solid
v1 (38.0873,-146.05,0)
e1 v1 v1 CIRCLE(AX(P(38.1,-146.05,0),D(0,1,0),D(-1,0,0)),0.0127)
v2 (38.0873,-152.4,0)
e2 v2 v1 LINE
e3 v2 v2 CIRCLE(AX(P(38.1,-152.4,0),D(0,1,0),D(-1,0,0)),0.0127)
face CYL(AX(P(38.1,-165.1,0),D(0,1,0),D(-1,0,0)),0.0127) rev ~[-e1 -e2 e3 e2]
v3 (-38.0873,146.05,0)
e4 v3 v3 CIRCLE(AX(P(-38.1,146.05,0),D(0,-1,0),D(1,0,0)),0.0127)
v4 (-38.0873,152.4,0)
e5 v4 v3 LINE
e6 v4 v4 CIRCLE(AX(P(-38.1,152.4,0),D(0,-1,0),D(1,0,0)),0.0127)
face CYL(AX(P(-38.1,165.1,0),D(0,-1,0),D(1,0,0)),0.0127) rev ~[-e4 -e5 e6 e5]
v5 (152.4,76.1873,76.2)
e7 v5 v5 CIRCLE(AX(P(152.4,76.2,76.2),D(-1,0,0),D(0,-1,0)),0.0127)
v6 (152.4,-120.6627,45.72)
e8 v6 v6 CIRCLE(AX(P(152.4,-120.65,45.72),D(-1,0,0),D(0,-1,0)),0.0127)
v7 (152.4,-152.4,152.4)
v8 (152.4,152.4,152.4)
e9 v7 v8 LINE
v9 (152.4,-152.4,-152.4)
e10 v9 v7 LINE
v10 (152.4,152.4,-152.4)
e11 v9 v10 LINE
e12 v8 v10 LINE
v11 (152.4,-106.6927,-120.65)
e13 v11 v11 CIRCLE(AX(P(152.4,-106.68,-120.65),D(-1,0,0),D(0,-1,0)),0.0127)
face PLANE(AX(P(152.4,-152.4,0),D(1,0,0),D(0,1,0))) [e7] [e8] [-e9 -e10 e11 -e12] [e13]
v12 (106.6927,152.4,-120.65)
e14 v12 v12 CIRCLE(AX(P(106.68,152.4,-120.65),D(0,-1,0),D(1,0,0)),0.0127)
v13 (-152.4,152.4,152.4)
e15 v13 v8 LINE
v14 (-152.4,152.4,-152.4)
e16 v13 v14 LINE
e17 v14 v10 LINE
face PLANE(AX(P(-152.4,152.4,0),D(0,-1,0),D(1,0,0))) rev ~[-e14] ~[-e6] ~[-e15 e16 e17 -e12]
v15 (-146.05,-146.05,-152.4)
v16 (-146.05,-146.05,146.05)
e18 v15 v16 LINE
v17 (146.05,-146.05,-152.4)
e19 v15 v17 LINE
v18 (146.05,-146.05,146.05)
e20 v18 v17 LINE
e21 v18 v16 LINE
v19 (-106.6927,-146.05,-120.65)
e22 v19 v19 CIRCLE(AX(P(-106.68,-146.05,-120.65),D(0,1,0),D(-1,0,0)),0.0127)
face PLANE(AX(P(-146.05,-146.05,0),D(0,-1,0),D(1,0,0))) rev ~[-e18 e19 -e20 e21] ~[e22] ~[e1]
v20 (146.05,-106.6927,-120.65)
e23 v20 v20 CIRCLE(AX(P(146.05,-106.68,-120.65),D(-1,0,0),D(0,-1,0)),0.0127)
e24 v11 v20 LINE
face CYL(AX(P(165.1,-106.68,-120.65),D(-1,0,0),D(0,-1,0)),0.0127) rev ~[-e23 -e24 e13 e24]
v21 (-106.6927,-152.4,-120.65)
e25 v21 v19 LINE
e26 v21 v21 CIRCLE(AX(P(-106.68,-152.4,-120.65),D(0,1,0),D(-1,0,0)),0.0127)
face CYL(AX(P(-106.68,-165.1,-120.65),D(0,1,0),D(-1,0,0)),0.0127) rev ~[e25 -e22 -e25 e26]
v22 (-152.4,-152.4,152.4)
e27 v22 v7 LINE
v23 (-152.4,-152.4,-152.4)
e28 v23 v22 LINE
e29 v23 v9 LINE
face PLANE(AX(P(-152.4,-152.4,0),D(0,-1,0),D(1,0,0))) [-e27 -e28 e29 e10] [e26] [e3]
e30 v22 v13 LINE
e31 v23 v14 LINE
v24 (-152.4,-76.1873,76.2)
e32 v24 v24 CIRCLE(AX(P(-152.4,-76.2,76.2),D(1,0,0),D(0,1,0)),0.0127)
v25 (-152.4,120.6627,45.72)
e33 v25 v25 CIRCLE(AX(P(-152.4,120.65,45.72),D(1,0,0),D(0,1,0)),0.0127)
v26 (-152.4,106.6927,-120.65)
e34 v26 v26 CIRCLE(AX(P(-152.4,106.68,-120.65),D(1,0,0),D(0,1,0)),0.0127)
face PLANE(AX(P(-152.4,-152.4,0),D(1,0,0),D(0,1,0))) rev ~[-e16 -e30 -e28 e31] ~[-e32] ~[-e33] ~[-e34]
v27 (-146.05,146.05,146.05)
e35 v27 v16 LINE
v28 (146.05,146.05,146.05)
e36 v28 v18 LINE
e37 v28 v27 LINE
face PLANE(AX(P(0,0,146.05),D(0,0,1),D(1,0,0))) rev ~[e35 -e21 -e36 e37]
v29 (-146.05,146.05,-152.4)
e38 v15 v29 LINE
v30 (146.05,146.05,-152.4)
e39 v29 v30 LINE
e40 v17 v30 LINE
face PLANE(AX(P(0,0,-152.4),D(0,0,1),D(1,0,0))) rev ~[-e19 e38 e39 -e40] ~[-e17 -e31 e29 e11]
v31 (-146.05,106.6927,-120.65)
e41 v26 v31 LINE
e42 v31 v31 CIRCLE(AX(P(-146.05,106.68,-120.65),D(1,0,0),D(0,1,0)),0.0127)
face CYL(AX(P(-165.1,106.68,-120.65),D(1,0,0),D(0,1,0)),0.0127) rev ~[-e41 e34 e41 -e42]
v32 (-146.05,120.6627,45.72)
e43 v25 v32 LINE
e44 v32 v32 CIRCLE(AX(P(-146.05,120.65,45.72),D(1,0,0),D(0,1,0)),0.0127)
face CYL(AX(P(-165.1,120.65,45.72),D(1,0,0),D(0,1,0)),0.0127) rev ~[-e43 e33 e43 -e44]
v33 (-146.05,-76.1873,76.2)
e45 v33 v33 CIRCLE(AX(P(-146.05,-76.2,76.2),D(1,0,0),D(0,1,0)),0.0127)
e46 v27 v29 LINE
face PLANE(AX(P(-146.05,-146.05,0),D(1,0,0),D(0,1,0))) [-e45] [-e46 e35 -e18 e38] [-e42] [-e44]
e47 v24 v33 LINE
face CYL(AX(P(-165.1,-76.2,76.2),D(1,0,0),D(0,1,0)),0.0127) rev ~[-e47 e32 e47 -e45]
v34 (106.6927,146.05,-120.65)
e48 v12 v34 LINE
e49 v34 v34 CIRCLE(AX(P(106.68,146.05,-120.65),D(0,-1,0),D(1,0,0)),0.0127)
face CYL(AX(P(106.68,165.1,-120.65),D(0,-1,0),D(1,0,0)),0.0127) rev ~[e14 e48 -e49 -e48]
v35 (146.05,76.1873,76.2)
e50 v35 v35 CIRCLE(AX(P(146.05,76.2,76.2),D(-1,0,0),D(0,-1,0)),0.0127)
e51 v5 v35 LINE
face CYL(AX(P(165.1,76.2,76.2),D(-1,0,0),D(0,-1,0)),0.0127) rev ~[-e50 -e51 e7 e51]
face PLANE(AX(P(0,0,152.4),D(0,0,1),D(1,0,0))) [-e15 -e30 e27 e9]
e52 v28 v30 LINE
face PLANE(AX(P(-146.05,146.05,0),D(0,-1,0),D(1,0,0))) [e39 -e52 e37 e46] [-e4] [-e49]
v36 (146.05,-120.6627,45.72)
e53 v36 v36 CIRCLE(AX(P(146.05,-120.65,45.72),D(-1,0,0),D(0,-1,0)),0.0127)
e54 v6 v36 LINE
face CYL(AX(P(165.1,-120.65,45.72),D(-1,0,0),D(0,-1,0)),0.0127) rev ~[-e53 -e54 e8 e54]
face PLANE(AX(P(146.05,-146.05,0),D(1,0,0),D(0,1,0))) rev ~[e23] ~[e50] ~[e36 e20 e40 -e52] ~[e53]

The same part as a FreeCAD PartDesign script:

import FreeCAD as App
import Part
import Sketcher
from FreeCAD import Vector
Q = App.Units.Quantity


def add_polygon(sketch, points):
    """Adds a closed chain of lines whose ends are joined by coincident constraints."""
    first, n = sketch.GeometryCount, len(points)
    for a, b in zip(points, points[1:] + points[:1]):
        sketch.addGeometry(Part.LineSegment(App.Vector(*a, 0), App.Vector(*b, 0)), False)
    for i in range(n):
        sketch.addConstraint(Sketcher.Constraint("Coincident", first + i, 2, first + (i + 1) % n, 1))

doc = App.newDocument("Part")
body = doc.addObject("PartDesign::Body", "Body")

sketch1 = body.newObject("Sketcher::SketchObject", "Sketch")
sketch1.AttachmentSupport = (doc.getObject("XY_Plane"), [""])
sketch1.MapMode = "FlatFace"
add_polygon(sketch1, [(-152.4, 152.4), (-152.4, -152.4), (152.4, -152.4), (152.4, 152.4)])
add_polygon(sketch1, [(146.05, -146.05), (-146.05, -146.05), (-146.05, 146.05), (146.05, 146.05)])
sketch1.addConstraint([
    Sketcher.Constraint("Vertical", 0),
    Sketcher.Constraint("Horizontal", 1),
    Sketcher.Constraint("Vertical", 2),
    Sketcher.Constraint("Horizontal", 3),
    Sketcher.Constraint("Horizontal", 4),
    Sketcher.Constraint("Vertical", 5),
    Sketcher.Constraint("Horizontal", 6),
    Sketcher.Constraint("Vertical", 7),
    Sketcher.Constraint("Symmetric", 0, 2, 2, 2, -1, 1),
    Sketcher.Constraint("Symmetric", 4, 2, 6, 2, -1, 1),
    Sketcher.Constraint("Equal", 3, 0),
    Sketcher.Constraint("Equal", 6, 5),
    Sketcher.Constraint("DistanceX", 1, 1, 1, 2, Q("12 in")),
    Sketcher.Constraint("DistanceX", 4, 2, 4, 1, Q("11.5 in")),
])
pad1 = body.newObject("PartDesign::Pad", "Pad")
pad1.Profile = sketch1
pad1.Length = Q("12 in")
pad1.Midplane = True

sketch2 = body.newObject("Sketcher::SketchObject", "Sketch001")
sketch2.AttachmentSupport = (doc.getObject("XY_Plane"), [""])
sketch2.MapMode = "FlatFace"
sketch2.AttachmentOffset = App.Placement(Vector(0, 0, 6 * 25.4), App.Rotation())
add_polygon(sketch2, [(-152.4, 152.4), (-152.4, -152.4), (152.4, -152.4), (152.4, 152.4)])
sketch2.addConstraint([
    Sketcher.Constraint("Vertical", 0),
    Sketcher.Constraint("Horizontal", 1),
    Sketcher.Constraint("Vertical", 2),
    Sketcher.Constraint("Horizontal", 3),
    Sketcher.Constraint("Symmetric", 0, 2, 2, 2, -1, 1),
    Sketcher.Constraint("Equal", 3, 0),
    Sketcher.Constraint("DistanceX", 1, 1, 1, 2, Q("12 in")),
])
pad2 = body.newObject("PartDesign::Pad", "Pad001")
pad2.Profile = sketch2
pad2.Length = Q("0.25 in")
pad2.Reversed = True

sketch3 = body.newObject("Sketcher::SketchObject", "Sketch002")
sketch3.AttachmentSupport = (doc.getObject("XZ_Plane"), [""])
sketch3.MapMode = "FlatFace"
sketch3.AttachmentOffset = App.Placement(Vector(0, 0, -6 * 25.4), App.Rotation())
sketch3.addGeometry(Part.Circle(Vector(-38.1, 0, 0), Vector(0, 0, 1), 0.0127), False)
sketch3.addConstraint([
    Sketcher.Constraint("PointOnObject", 0, 3, -1),
    Sketcher.Constraint("Diameter", 0, Q("0.001 in")),
    Sketcher.Constraint("DistanceX", 0, 3, -1, 1, Q("1.5 in")),
])
doc.recompute()
hole = body.newObject("PartDesign::Hole", "Hole")
hole.Profile = sketch3
hole.ThreadType = "None"
hole.Diameter = Q("0.001 in")
hole.DepthType = "Dimension"
hole.Depth = Q("0.5 in")
hole.DrillPoint = "Flat"
hole.Reversed = True

sketch4 = body.newObject("Sketcher::SketchObject", "Sketch003")
sketch4.AttachmentSupport = (doc.getObject("XZ_Plane"), [""])
sketch4.MapMode = "FlatFace"
sketch4.AttachmentOffset = App.Placement(Vector(0, 0, -6 * 25.4), App.Rotation())
sketch4.addGeometry(Part.Circle(Vector(106.68, -120.65, 0), Vector(0, 0, 1), 0.0127), False)
sketch4.addConstraint([
    Sketcher.Constraint("Diameter", 0, Q("0.001 in")),
    Sketcher.Constraint("DistanceX", -1, 1, 0, 3, Q("4.2 in")),
    Sketcher.Constraint("DistanceY", 0, 3, -1, 1, Q("4.75 in")),
])
doc.recompute()
hole2 = body.newObject("PartDesign::Hole", "Hole001")
hole2.Profile = sketch4
hole2.ThreadType = "None"
hole2.Diameter = Q("0.001 in")
hole2.DepthType = "Dimension"
hole2.Depth = Q("0.5 in")
hole2.DrillPoint = "Flat"
hole2.Reversed = True

sketch5 = body.newObject("Sketcher::SketchObject", "Sketch004")
sketch5.AttachmentSupport = (doc.getObject("XZ_Plane"), [""])
sketch5.MapMode = "FlatFace"
sketch5.AttachmentOffset = App.Placement(Vector(0, 0, 6 * 25.4), App.Rotation())
sketch5.addGeometry(Part.Circle(Vector(-106.68, -120.65, 0), Vector(0, 0, 1), 0.0127), False)
sketch5.addConstraint([
    Sketcher.Constraint("Diameter", 0, Q("0.001 in")),
    Sketcher.Constraint("DistanceX", 0, 3, -1, 1, Q("4.2 in")),
    Sketcher.Constraint("DistanceY", 0, 3, -1, 1, Q("4.75 in")),
])
doc.recompute()
hole3 = body.newObject("PartDesign::Hole", "Hole002")
hole3.Profile = sketch5
hole3.ThreadType = "None"
hole3.Diameter = Q("0.001 in")
hole3.DepthType = "Dimension"
hole3.Depth = Q("0.5 in")
hole3.DrillPoint = "Flat"

sketch6 = body.newObject("Sketcher::SketchObject", "Sketch005")
sketch6.AttachmentSupport = (doc.getObject("XZ_Plane"), [""])
sketch6.MapMode = "FlatFace"
sketch6.AttachmentOffset = App.Placement(Vector(0, 0, 6 * 25.4), App.Rotation())
sketch6.addGeometry(Part.Circle(Vector(38.1, 0, 0), Vector(0, 0, 1), 0.0127), False)
sketch6.addConstraint([
    Sketcher.Constraint("PointOnObject", 0, 3, -1),
    Sketcher.Constraint("Diameter", 0, Q("0.001 in")),
    Sketcher.Constraint("DistanceX", -1, 1, 0, 3, Q("1.5 in")),
])
doc.recompute()
hole4 = body.newObject("PartDesign::Hole", "Hole003")
hole4.Profile = sketch6
hole4.ThreadType = "None"
hole4.Diameter = Q("0.001 in")
hole4.DepthType = "Dimension"
hole4.Depth = Q("0.5 in")
hole4.DrillPoint = "Flat"

sketch7 = body.newObject("Sketcher::SketchObject", "Sketch006")
sketch7.AttachmentSupport = (doc.getObject("YZ_Plane"), [""])
sketch7.MapMode = "FlatFace"
sketch7.AttachmentOffset = App.Placement(Vector(0, 0, 6 * 25.4), App.Rotation())
sketch7.addGeometry(Part.Circle(Vector(-106.68, -120.65, 0), Vector(0, 0, 1), 0.0127), False)
sketch7.addConstraint([
    Sketcher.Constraint("Diameter", 0, Q("0.001 in")),
    Sketcher.Constraint("DistanceX", 0, 3, -1, 1, Q("4.2 in")),
    Sketcher.Constraint("DistanceY", 0, 3, -1, 1, Q("4.75 in")),
])
doc.recompute()
hole5 = body.newObject("PartDesign::Hole", "Hole004")
hole5.Profile = sketch7
hole5.ThreadType = "None"
hole5.Diameter = Q("0.001 in")
hole5.DepthType = "Dimension"
hole5.Depth = Q("0.5 in")
hole5.DrillPoint = "Flat"

sketch8 = body.newObject("Sketcher::SketchObject", "Sketch007")
sketch8.AttachmentSupport = (doc.getObject("YZ_Plane"), [""])
sketch8.MapMode = "FlatFace"
sketch8.AttachmentOffset = App.Placement(Vector(0, 0, 6 * 25.4), App.Rotation())
sketch8.addGeometry(Part.Circle(Vector(76.2, 76.2, 0), Vector(0, 0, 1), 0.0127), False)
sketch8.addConstraint([
    Sketcher.Constraint("Diameter", 0, Q("0.001 in")),
    Sketcher.Constraint("DistanceX", -1, 1, 0, 3, Q("3 in")),
    Sketcher.Constraint("DistanceY", -1, 1, 0, 3, Q("3 in")),
])
doc.recompute()
hole6 = body.newObject("PartDesign::Hole", "Hole005")
hole6.Profile = sketch8
hole6.ThreadType = "None"
hole6.Diameter = Q("0.001 in")
hole6.DepthType = "Dimension"
hole6.Depth = Q("0.5 in")
hole6.DrillPoint = "Flat"

sketch9 = body.newObject("Sketcher::SketchObject", "Sketch008")
sketch9.AttachmentSupport = (doc.getObject("YZ_Plane"), [""])
sketch9.MapMode = "FlatFace"
sketch9.AttachmentOffset = App.Placement(Vector(0, 0, 6 * 25.4), App.Rotation())
sketch9.addGeometry(Part.Circle(Vector(-120.65, 45.72, 0), Vector(0, 0, 1), 0.0127), False)
sketch9.addConstraint([
    Sketcher.Constraint("Diameter", 0, Q("0.001 in")),
    Sketcher.Constraint("DistanceY", -1, 1, 0, 3, Q("1.8 in")),
    Sketcher.Constraint("DistanceX", 0, 3, -1, 1, Q("4.75 in")),
])
doc.recompute()
hole7 = body.newObject("PartDesign::Hole", "Hole006")
hole7.Profile = sketch9
hole7.ThreadType = "None"
hole7.Diameter = Q("0.001 in")
hole7.DepthType = "Dimension"
hole7.Depth = Q("0.5 in")
hole7.DrillPoint = "Flat"

sketch10 = body.newObject("Sketcher::SketchObject", "Sketch009")
sketch10.AttachmentSupport = (doc.getObject("YZ_Plane"), [""])
sketch10.MapMode = "FlatFace"
sketch10.AttachmentOffset = App.Placement(Vector(0, 0, -6 * 25.4), App.Rotation())
sketch10.addGeometry(Part.Circle(Vector(106.68, -120.65, 0), Vector(0, 0, 1), 0.0127), False)
sketch10.addConstraint([
    Sketcher.Constraint("Diameter", 0, Q("0.001 in")),
    Sketcher.Constraint("DistanceX", -1, 1, 0, 3, Q("4.2 in")),
    Sketcher.Constraint("DistanceY", 0, 3, -1, 1, Q("4.75 in")),
])
doc.recompute()
hole8 = body.newObject("PartDesign::Hole", "Hole007")
hole8.Profile = sketch10
hole8.ThreadType = "None"
hole8.Diameter = Q("0.001 in")
hole8.DepthType = "Dimension"
hole8.Depth = Q("0.5 in")
hole8.DrillPoint = "Flat"
hole8.Reversed = True

sketch11 = body.newObject("Sketcher::SketchObject", "Sketch010")
sketch11.AttachmentSupport = (doc.getObject("YZ_Plane"), [""])
sketch11.MapMode = "FlatFace"
sketch11.AttachmentOffset = App.Placement(Vector(0, 0, -6 * 25.4), App.Rotation())
sketch11.addGeometry(Part.Circle(Vector(120.65, 45.72, 0), Vector(0, 0, 1), 0.0127), False)
sketch11.addConstraint([
    Sketcher.Constraint("Diameter", 0, Q("0.001 in")),
    Sketcher.Constraint("DistanceY", -1, 1, 0, 3, Q("1.8 in")),
    Sketcher.Constraint("DistanceX", -1, 1, 0, 3, Q("4.75 in")),
])
doc.recompute()
hole9 = body.newObject("PartDesign::Hole", "Hole008")
hole9.Profile = sketch11
hole9.ThreadType = "None"
hole9.Diameter = Q("0.001 in")
hole9.DepthType = "Dimension"
hole9.Depth = Q("0.5 in")
hole9.DrillPoint = "Flat"
hole9.Reversed = True

sketch12 = body.newObject("Sketcher::SketchObject", "Sketch011")
sketch12.AttachmentSupport = (doc.getObject("YZ_Plane"), [""])
sketch12.MapMode = "FlatFace"
sketch12.AttachmentOffset = App.Placement(Vector(0, 0, -6 * 25.4), App.Rotation())
sketch12.addGeometry(Part.Circle(Vector(-76.2, 76.2, 0), Vector(0, 0, 1), 0.0127), False)
sketch12.addConstraint([
    Sketcher.Constraint("Diameter", 0, Q("0.001 in")),
    Sketcher.Constraint("DistanceX", 0, 3, -1, 1, Q("3 in")),
    Sketcher.Constraint("DistanceY", -1, 1, 0, 3, Q("3 in")),
])
doc.recompute()
hole10 = body.newObject("PartDesign::Hole", "Hole009")
hole10.Profile = sketch12
hole10.ThreadType = "None"
hole10.Diameter = Q("0.001 in")
hole10.DepthType = "Dimension"
hole10.Depth = Q("0.5 in")
hole10.DrillPoint = "Flat"
hole10.Reversed = True

doc.recompute()
